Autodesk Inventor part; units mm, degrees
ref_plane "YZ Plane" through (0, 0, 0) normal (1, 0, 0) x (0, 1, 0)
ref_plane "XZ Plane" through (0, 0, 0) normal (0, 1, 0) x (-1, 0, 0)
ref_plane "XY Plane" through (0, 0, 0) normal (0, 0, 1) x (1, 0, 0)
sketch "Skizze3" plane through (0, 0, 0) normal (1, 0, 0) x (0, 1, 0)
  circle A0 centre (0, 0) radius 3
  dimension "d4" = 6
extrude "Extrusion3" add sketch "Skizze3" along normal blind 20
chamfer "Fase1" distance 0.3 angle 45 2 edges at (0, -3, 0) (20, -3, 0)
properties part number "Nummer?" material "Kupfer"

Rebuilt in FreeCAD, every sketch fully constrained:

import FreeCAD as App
import Part
import Sketcher
from FreeCAD import Vector
Q = App.Units.Quantity


def edges_at(feature, points):
    """Names of the edges that pass closest to the given points."""
    edges = feature.Shape.Edges
    near = lambda p: min(range(len(edges)), key=lambda i: edges[i].distToShape(Part.Vertex(*p))[0])
    return sorted({f"Edge{near(p) + 1}" for p in points})

doc = App.newDocument("Part")
body = doc.addObject("PartDesign::Body", "Body")

# Sketch on YZ plane
sketch1 = body.newObject("Sketcher::SketchObject", "Sketch")
sketch1.AttachmentSupport = (doc.getObject("YZ_Plane"), [""])
sketch1.MapMode = "FlatFace"
sketch1.addGeometry(Part.Circle(Vector(0, 0, 0), Vector(0, 0, 1), 3), False)
sketch1.addConstraint([
    Sketcher.Constraint("Coincident", 0, 3, -1, 1),
    Sketcher.Constraint("Diameter", 0, Q("6 mm")),
])
pad1 = body.newObject("PartDesign::Pad", "Pad")
pad1.Profile = sketch1
pad1.Length = 20
doc.recompute()

chamfer = body.newObject("PartDesign::Chamfer", "Chamfer")
chamfer.Base = (pad1, edges_at(pad1, [(0, -3, 0), (20, -3, 0)]))
chamfer.Size = 0.3

doc.recompute()
